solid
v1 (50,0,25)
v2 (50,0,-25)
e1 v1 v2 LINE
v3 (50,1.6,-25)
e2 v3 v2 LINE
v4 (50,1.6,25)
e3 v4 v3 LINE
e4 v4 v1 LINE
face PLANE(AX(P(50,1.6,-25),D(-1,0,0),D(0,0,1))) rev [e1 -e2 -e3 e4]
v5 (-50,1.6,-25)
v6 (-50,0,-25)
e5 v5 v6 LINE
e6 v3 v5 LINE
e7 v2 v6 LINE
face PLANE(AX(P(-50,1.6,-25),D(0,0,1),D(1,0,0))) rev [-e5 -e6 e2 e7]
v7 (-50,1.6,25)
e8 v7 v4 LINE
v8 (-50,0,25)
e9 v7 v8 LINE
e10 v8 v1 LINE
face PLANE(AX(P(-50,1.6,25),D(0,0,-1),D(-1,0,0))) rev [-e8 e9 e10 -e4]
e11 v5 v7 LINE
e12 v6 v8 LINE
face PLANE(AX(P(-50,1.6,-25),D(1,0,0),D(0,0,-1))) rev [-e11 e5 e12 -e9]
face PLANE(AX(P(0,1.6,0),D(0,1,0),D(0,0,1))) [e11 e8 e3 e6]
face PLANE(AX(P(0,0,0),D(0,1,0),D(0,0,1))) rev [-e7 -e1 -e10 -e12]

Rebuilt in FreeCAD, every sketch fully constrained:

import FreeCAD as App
import Part
import Sketcher

V = App.Vector
Q = App.Units.Quantity

doc = App.newDocument("Part")
params = doc.addObject("Spreadsheet::Sheet", "Params")
for row, (alias, value) in enumerate([
    ("sketch1_width", "100 mm"),
    ("sketch1_height", "50 mm"),
    ("pad1_length", "1.6 mm"),
], start=1):
    params.set(f"A{row}", alias)
    params.set(f"B{row}", "=" + value)
    params.setAlias(f"B{row}", alias)

body = doc.addObject("PartDesign::Body", "Body")

sketch1 = body.newObject("Sketcher::SketchObject", "Sketch")
sketch1.AttachmentSupport = (doc.getObject("XZ_Plane"), [""])
sketch1.MapMode = "FlatFace"
sketch1.addGeometry(Part.LineSegment(V(-50, -25, 0), V(-50, 25, 0)), False)
sketch1.addGeometry(Part.LineSegment(V(-50, 25, 0), V(50, 25, 0)), False)
sketch1.addGeometry(Part.LineSegment(V(50, 25, 0), V(50, -25, 0)), False)
sketch1.addGeometry(Part.LineSegment(V(50, -25, 0), V(-50, -25, 0)), False)
sketch1.addConstraint(Sketcher.Constraint("Coincident", 0, 2, 1, 1))
sketch1.addConstraint(Sketcher.Constraint("Coincident", 1, 2, 2, 1))
sketch1.addConstraint(Sketcher.Constraint("Coincident", 2, 2, 3, 1))
sketch1.addConstraint(Sketcher.Constraint("Coincident", 3, 2, 0, 1))
sketch1.addConstraint(Sketcher.Constraint("Vertical", 0))
sketch1.addConstraint(Sketcher.Constraint("Horizontal", 1))
sketch1.addConstraint(Sketcher.Constraint("Vertical", 2))
sketch1.addConstraint(Sketcher.Constraint("Horizontal", 3))
sketch1.addConstraint(Sketcher.Constraint("Symmetric", 0, 2, 2, 2, -1, 1))
sketch1.addConstraint(Sketcher.Constraint("DistanceX", 1, 1, 1, 2, Q("100 mm")))
sketch1.addConstraint(Sketcher.Constraint("DistanceY", 0, 1, 0, 2, Q("50 mm")))
sketch1.setExpression("Constraints[9]", "Params.sketch1_width")
sketch1.setExpression("Constraints[10]", "Params.sketch1_height")
pad1 = body.newObject("PartDesign::Pad", "Pad")
pad1.Profile = sketch1
pad1.setExpression("Length", "Params.pad1_length")
pad1.Reversed = True

doc.recompute()
